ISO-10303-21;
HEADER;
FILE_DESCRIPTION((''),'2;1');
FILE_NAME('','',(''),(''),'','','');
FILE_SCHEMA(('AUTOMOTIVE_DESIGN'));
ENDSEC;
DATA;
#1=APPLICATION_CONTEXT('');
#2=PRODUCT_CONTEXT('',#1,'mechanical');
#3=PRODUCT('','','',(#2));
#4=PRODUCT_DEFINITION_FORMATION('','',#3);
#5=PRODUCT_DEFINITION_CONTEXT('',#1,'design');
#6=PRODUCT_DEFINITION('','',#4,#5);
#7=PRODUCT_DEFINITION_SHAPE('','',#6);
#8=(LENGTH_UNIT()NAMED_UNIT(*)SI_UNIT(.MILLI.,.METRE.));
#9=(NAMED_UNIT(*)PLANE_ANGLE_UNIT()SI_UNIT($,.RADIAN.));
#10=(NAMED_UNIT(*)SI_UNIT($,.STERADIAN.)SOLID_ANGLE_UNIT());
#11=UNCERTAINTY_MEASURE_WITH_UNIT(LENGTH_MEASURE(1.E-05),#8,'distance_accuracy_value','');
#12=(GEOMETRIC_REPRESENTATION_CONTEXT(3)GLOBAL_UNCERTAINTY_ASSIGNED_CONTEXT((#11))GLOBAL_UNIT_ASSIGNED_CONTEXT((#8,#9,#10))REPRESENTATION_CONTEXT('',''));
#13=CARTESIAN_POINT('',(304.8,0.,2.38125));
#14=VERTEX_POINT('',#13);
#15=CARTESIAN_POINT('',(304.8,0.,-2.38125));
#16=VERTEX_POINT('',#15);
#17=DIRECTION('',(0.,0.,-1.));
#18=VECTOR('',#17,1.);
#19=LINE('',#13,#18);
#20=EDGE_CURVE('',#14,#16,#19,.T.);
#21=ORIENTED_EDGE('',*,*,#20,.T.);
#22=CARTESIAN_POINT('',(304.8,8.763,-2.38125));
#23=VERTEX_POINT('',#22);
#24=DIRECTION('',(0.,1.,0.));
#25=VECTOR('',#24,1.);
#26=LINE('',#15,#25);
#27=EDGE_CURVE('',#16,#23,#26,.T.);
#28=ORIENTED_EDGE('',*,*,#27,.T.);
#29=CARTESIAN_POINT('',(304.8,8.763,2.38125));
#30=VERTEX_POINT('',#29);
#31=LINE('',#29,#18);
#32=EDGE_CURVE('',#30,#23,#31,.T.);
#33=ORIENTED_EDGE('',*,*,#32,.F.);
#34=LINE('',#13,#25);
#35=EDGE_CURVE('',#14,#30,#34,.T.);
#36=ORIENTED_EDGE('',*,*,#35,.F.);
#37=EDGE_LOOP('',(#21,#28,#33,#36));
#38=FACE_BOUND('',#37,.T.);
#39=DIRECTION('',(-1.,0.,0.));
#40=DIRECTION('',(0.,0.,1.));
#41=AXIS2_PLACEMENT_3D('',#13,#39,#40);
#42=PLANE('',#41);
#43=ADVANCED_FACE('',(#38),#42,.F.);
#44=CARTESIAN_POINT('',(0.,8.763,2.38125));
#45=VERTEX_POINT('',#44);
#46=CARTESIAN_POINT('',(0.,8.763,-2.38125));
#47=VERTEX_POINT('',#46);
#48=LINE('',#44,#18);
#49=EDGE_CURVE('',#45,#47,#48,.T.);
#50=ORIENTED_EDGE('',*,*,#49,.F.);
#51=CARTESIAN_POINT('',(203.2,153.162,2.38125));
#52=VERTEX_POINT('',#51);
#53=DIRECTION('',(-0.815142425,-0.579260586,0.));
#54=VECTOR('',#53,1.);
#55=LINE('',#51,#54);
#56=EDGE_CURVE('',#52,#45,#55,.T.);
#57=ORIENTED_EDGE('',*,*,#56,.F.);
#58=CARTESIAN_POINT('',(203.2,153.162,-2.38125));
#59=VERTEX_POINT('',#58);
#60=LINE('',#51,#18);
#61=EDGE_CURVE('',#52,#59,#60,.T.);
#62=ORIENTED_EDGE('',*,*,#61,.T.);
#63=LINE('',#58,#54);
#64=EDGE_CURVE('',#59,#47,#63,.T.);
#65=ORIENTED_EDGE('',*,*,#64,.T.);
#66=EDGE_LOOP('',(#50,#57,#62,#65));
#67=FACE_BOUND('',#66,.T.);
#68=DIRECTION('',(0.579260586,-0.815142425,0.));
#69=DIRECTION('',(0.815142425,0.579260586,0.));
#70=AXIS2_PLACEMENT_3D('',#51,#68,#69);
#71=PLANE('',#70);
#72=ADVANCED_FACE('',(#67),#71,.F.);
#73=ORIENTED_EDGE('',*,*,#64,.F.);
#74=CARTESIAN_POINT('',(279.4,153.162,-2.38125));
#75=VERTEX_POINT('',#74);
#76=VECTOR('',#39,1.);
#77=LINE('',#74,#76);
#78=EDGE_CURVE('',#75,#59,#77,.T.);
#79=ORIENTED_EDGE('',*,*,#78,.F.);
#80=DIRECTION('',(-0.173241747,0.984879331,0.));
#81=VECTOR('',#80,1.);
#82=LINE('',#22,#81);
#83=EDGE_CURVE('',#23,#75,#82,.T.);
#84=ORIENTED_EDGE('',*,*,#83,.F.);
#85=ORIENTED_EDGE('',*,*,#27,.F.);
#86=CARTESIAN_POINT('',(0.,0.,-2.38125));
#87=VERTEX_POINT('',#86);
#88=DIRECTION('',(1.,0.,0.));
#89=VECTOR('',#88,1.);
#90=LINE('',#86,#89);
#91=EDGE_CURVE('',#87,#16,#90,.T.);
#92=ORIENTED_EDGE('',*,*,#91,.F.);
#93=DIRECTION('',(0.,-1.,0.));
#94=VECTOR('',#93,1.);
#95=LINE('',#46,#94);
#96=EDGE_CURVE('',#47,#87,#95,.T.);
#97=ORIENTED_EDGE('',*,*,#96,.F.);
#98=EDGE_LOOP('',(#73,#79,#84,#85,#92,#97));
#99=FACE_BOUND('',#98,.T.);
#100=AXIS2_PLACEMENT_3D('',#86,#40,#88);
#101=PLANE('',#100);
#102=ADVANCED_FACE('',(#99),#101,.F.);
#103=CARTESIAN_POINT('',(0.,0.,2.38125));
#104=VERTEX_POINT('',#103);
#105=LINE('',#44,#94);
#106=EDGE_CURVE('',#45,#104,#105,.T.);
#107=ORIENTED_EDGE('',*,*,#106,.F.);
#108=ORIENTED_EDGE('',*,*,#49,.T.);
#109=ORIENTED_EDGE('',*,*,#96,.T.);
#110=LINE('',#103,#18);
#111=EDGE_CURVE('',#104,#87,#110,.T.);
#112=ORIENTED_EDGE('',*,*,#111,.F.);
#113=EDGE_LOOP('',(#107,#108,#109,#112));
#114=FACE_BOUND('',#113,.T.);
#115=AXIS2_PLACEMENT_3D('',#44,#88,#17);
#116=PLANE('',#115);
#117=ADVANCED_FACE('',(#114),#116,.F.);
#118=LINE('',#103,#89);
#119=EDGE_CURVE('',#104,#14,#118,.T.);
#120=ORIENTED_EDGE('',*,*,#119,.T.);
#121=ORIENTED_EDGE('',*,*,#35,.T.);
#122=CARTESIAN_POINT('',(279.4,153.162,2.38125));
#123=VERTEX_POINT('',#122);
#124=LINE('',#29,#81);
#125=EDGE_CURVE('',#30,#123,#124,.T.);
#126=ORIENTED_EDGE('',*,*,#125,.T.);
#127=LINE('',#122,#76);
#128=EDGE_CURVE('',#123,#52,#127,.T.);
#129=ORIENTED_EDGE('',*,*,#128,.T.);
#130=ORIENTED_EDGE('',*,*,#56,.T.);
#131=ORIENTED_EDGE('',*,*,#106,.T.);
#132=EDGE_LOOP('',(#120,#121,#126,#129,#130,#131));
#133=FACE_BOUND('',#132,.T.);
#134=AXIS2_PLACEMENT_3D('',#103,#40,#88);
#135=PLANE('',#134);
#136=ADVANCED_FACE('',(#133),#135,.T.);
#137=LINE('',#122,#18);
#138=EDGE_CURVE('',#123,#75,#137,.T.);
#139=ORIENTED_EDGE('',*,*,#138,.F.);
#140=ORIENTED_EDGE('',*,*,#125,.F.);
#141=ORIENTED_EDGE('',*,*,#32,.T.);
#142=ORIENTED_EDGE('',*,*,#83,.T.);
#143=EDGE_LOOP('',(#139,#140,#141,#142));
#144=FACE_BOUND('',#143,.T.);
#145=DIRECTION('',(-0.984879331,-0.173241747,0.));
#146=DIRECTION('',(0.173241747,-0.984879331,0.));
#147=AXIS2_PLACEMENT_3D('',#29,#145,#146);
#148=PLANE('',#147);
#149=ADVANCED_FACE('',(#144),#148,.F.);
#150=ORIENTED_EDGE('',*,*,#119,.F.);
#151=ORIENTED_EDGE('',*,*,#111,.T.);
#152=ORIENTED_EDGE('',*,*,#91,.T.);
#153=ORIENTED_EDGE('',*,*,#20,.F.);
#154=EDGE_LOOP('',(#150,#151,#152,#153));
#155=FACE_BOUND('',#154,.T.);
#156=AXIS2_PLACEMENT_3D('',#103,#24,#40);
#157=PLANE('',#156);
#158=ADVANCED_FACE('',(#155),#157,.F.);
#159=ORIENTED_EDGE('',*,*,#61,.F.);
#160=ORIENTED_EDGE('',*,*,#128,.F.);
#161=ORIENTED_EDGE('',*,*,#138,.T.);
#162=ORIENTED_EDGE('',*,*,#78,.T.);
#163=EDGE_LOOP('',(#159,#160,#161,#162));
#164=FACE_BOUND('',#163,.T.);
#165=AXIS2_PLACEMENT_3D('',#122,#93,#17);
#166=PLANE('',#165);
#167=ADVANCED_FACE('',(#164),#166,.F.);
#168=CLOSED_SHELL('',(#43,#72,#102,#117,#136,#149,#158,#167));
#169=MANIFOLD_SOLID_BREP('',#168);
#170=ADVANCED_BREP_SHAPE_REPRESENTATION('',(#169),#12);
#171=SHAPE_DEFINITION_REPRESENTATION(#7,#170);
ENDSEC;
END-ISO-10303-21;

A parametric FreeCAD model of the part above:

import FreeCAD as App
import Part
import Sketcher

V = App.Vector
Q = App.Units.Quantity

doc = App.newDocument("Part")
body = doc.addObject("PartDesign::Body", "Body")

# Sketch on XY plane
sketch1 = doc.addObject("Sketcher::SketchObject", "Sketch")
body.addObject(sketch1)
sketch1.AttachmentSupport = (doc.XY_Plane, [""])
sketch1.MapMode = "FlatFace"
sketch1.addGeometry([
    Part.LineSegment(V(0, 0, 0), V(304.8, 0, 0)),  # 0
    Part.LineSegment(V(304.8, 0, 0), V(304.8, 8.763, 0)),  # 1
    Part.LineSegment(V(304.8, 8.763, 0), V(279.4, 153.162, 0)),  # 2
    Part.LineSegment(V(279.4, 153.162, 0), V(203.2, 153.162, 0)),  # 3
    Part.LineSegment(V(203.2, 153.162, 0), V(0, 8.763, 0)),  # 4
    Part.LineSegment(V(0, 8.763, 0), V(0, 0, 0)),  # 5
], False)
sketch1.addConstraint([
    Sketcher.Constraint("Coincident", 0, 2, 1, 1),
    Sketcher.Constraint("Coincident", 1, 2, 2, 1),
    Sketcher.Constraint("Coincident", 2, 2, 3, 1),
    Sketcher.Constraint("Coincident", 3, 2, 4, 1),
    Sketcher.Constraint("Coincident", 4, 2, 5, 1),
    Sketcher.Constraint("Coincident", 5, 2, 0, 1),
    Sketcher.Constraint("Horizontal", 0),
    Sketcher.Constraint("Vertical", 1),
    Sketcher.Constraint("Horizontal", 3),
    Sketcher.Constraint("Vertical", 5),
    Sketcher.Constraint("Coincident", 5, 2, -1, 1),
    Sketcher.Constraint("Horizontal", 1, 2, 4, 2),
    Sketcher.Constraint("DistanceX", 0, 1, 0, 2, Q("12 in")),
    Sketcher.Constraint("DistanceX", 3, 2, 3, 1, Q("3 in")),
    Sketcher.Constraint("DistanceX", -1, 1, 2, 2, Q("11 in")),
    Sketcher.Constraint("DistanceY", 1, 1, 1, 2, Q("0.345 in")),
    Sketcher.Constraint("DistanceY", -1, 1, 2, 2, Q("6.03 in")),
])
pad1 = doc.addObject("PartDesign::Pad", "Pad")
body.addObject(pad1)
pad1.Profile = sketch1
pad1.Length = Q("0.1875 in")
pad1.Midplane = True

doc.recompute()
